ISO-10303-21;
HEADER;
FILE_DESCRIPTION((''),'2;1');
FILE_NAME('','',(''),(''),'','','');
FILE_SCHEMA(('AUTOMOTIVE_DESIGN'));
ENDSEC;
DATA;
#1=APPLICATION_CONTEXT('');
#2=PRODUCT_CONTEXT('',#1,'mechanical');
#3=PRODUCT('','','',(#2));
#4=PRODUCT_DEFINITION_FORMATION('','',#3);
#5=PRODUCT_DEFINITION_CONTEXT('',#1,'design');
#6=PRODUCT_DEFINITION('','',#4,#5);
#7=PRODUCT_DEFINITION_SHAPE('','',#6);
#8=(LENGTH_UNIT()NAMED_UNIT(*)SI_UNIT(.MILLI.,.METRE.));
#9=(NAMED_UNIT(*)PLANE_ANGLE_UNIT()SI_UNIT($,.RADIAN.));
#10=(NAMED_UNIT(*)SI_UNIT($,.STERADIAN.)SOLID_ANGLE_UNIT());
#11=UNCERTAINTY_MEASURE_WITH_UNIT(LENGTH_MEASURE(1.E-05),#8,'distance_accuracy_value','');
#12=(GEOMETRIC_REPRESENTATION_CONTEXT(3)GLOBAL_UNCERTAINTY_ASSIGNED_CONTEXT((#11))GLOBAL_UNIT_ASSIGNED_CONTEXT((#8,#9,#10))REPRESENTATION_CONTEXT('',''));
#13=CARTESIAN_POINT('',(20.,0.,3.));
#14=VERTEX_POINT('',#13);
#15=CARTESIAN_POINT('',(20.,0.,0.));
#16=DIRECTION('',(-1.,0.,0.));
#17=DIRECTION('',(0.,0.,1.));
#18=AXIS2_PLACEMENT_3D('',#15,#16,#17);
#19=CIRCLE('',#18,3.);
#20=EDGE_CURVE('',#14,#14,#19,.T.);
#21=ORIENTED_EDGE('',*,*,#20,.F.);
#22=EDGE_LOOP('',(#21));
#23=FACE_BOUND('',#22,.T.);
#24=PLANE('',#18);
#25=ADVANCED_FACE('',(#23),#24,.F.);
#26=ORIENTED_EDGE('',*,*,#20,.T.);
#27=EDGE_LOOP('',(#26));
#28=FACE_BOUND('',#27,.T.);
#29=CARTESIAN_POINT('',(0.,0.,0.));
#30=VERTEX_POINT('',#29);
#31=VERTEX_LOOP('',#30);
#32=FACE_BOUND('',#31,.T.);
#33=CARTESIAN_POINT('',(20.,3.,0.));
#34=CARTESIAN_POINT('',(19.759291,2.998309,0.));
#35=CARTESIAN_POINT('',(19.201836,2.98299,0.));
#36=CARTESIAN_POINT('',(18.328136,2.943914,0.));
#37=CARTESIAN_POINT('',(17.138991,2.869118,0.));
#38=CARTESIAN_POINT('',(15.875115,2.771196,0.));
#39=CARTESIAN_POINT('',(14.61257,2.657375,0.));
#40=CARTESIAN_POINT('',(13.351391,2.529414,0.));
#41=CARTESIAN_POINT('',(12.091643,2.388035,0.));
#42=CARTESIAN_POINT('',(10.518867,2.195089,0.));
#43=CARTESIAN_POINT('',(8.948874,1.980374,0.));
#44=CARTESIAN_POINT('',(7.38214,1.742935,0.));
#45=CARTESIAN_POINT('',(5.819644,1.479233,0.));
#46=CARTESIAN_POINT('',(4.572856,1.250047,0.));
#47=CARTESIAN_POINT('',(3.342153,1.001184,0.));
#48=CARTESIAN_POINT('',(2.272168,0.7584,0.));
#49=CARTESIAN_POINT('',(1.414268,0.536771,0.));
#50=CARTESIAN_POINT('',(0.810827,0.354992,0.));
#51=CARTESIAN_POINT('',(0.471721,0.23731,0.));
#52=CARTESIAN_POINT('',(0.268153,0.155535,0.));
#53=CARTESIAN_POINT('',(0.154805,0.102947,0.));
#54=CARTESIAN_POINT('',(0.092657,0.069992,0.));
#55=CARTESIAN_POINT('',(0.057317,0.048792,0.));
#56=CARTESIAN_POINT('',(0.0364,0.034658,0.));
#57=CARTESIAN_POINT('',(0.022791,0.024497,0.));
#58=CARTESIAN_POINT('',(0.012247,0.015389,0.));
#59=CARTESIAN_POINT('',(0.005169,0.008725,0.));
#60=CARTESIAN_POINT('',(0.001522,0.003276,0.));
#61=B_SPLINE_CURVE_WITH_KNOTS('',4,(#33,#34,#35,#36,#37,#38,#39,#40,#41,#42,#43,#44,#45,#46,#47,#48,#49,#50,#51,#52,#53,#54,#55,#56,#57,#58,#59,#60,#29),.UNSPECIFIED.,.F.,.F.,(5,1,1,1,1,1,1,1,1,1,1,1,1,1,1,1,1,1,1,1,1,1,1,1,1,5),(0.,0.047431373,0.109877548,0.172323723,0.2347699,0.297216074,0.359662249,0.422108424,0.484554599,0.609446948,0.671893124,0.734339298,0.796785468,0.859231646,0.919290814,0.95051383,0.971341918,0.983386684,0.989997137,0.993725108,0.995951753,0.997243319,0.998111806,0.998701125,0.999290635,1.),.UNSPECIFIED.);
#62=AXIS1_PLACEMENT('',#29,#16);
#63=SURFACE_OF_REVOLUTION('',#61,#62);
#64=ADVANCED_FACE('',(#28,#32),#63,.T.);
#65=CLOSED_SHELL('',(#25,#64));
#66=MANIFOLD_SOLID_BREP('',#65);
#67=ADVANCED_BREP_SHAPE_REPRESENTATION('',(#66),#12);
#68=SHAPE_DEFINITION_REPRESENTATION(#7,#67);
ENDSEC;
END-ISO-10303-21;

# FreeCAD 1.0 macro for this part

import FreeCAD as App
import Part
import Sketcher

V = App.Vector

doc = App.newDocument("Part")
body = doc.addObject("PartDesign::Body", "Body")

sketch1 = body.newObject("Sketcher::SketchObject", "Sketch")
sketch1.AttachmentSupport = (doc.getObject("XY_Plane"), [""])
sketch1.MapMode = "FlatFace"
sketch1.addGeometry([
    Part.LineSegment(V(0, 0, 0), V(20, 0, 0)),
    Part.LineSegment(V(20, 0, 0), V(20, 3, 0)),
    Part.BSplineCurve([V(0, 0, 0), V(0.001522, 0.003276, 0), V(0.005169, 0.008725, 0), V(0.012247, 0.015389, 0), V(0.022791, 0.024497, 0), V(0.0364, 0.034658, 0), V(0.057317, 0.048792, 0), V(0.092657, 0.069992, 0), V(0.154805, 0.102947, 0), V(0.268153, 0.155535, 0), V(0.471721, 0.23731, 0), V(0.810827, 0.354992, 0), V(1.414268, 0.536771, 0), V(2.272168, 0.7584, 0), V(3.342153, 1.001184, 0), V(4.572856, 1.250047, 0), V(5.819644, 1.479233, 0), V(7.38214, 1.742935, 0), V(8.948874, 1.980374, 0), V(10.518867, 2.195089, 0), V(12.091643, 2.388035, 0), V(13.351391, 2.529414, 0), V(14.61257, 2.657375, 0), V(15.875115, 2.771196, 0), V(17.138991, 2.869118, 0), V(18.328136, 2.943914, 0), V(19.201836, 2.98299, 0), V(19.759291, 2.998309, 0), V(20, 3, 0)], [5, 1, 1, 1, 1, 1, 1, 1, 1, 1, 1, 1, 1, 1, 1, 1, 1, 1, 1, 1, 1, 1, 1, 1, 1, 5], [0, 0.000709365, 0.001298875, 0.001888194, 0.002756681, 0.004048247, 0.006274892, 0.010002863, 0.016613316, 0.028658082, 0.04948617, 0.080709186, 0.140768354, 0.203214532, 0.265660702, 0.328106876, 0.390553052, 0.515445401, 0.577891576, 0.640337751, 0.702783926, 0.7652301, 0.827676277, 0.890122452, 0.952568627, 1], False, 4, [1, 1, 1, 1, 1, 1, 1, 1, 1, 1, 1, 1, 1, 1, 1, 1, 1, 1, 1, 1, 1, 1, 1, 1, 1, 1, 1, 1, 1], False),
], False)
sketch1.addConstraint([
    Sketcher.Constraint("Block", 2),
    Sketcher.Constraint("Coincident", 0, 2, 1, 1),
    Sketcher.Constraint("Coincident", 1, 2, 2, 2),
    Sketcher.Constraint("Coincident", 2, 1, 0, 1),
    Sketcher.Constraint("Horizontal", 0),
    Sketcher.Constraint("Vertical", 1),
])
revolution = body.newObject("PartDesign::Revolution", "Revolution")
revolution.Profile = sketch1
revolution.ReferenceAxis = (sketch1, ["H_Axis"])
revolution.Angle = 360

doc.recompute()
